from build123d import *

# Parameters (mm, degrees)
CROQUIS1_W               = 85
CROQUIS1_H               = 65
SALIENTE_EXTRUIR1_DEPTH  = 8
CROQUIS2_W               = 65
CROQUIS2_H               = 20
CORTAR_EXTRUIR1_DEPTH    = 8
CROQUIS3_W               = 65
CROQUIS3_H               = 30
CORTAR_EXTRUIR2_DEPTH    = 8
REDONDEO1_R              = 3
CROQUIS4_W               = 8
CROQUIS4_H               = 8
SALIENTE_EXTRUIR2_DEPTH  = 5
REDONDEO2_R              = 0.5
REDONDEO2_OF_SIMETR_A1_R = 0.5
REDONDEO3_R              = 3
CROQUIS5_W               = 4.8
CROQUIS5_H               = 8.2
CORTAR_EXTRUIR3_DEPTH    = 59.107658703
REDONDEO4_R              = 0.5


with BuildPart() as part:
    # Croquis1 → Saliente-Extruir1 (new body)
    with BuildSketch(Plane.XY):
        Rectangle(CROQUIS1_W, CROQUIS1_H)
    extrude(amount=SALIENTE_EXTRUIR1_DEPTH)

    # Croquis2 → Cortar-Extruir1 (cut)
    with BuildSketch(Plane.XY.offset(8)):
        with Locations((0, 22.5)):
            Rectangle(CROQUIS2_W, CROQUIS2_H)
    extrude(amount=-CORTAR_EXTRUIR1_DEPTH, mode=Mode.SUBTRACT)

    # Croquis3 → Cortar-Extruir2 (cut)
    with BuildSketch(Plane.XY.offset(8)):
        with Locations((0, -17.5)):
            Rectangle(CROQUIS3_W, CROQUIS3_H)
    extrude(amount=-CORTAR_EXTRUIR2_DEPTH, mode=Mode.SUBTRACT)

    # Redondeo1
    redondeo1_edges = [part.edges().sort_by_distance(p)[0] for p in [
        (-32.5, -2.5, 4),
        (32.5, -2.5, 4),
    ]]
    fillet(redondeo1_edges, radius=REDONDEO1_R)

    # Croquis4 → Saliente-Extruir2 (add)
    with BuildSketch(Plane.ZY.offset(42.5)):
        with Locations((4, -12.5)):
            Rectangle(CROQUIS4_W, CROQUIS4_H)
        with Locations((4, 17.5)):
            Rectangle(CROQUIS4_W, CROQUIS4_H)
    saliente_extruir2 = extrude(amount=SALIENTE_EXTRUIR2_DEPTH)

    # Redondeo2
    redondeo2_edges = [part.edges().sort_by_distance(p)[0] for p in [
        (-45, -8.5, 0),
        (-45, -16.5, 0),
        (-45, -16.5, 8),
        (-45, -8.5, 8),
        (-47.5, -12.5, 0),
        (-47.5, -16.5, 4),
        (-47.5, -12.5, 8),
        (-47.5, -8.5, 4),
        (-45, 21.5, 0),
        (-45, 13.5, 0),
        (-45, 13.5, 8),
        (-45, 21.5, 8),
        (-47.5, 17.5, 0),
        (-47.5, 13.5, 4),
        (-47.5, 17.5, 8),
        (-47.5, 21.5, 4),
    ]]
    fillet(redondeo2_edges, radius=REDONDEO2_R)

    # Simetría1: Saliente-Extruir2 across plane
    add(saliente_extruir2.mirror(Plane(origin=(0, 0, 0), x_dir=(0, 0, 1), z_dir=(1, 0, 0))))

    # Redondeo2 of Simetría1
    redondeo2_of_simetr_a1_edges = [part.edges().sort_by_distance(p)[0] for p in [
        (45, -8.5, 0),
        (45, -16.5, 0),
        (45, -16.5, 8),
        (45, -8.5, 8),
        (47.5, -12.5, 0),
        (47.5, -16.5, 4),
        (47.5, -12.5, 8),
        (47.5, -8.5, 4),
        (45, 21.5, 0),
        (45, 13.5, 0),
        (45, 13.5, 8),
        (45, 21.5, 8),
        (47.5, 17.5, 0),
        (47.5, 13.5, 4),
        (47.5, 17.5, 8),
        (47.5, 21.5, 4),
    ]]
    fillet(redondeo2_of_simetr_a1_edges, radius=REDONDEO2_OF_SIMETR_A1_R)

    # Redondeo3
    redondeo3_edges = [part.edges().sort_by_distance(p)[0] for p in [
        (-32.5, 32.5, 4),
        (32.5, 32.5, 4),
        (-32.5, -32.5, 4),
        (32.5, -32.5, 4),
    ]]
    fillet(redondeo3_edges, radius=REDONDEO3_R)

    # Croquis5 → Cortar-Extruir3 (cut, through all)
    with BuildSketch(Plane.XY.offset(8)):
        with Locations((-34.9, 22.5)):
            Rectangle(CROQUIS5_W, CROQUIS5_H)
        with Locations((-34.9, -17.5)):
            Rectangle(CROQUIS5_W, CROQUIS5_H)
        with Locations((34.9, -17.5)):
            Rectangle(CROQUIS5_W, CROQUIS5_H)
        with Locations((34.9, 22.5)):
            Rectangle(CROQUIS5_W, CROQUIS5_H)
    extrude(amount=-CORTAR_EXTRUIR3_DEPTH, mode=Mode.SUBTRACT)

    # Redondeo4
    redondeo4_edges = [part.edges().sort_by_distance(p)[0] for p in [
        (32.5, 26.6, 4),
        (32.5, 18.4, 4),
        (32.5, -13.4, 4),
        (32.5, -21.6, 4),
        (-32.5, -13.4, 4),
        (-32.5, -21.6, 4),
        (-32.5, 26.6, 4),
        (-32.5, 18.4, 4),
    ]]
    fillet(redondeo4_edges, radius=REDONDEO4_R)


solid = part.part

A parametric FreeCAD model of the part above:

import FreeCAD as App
import Part
import Sketcher

V = App.Vector


def edges_at(feature, points):
    """Names of the edges that pass closest to the given points."""
    edges = feature.Shape.Edges
    near = lambda p: min(range(len(edges)), key=lambda i: edges[i].distToShape(Part.Vertex(*p))[0])
    return sorted({f"Edge{near(p) + 1}" for p in points})

doc = App.newDocument("Part")
body = doc.addObject("PartDesign::Body", "Body")

# Sketch on XY plane
sketch1 = body.newObject("Sketcher::SketchObject", "Sketch")
sketch1.AttachmentSupport = (doc.getObject("XY_Plane"), [""])
sketch1.MapMode = "FlatFace"
sketch1.addGeometry([
    Part.LineSegment(V(-42, 32, 0), V(-42, -32, 0)),
    Part.LineSegment(V(-42, -32, 0), V(42, -32, 0)),
    Part.LineSegment(V(42, -32, 0), V(42, 32, 0)),
    Part.LineSegment(V(42, 32, 0), V(-42, 32, 0)),
], False)
sketch1.addConstraint([
    Sketcher.Constraint("Coincident", 0, 2, 1, 1),
    Sketcher.Constraint("Coincident", 1, 2, 2, 1),
    Sketcher.Constraint("Coincident", 2, 2, 3, 1),
    Sketcher.Constraint("Coincident", 3, 2, 0, 1),
    Sketcher.Constraint("Vertical", 0),
    Sketcher.Constraint("Horizontal", 1),
    Sketcher.Constraint("Vertical", 2),
    Sketcher.Constraint("Horizontal", 3),
    Sketcher.Constraint("Symmetric", 0, 2, 2, 2, -1, 1),
    Sketcher.Constraint("DistanceX", 1, 1, 1, 2, 85.0),
    Sketcher.Constraint("DistanceY", 0, 2, 0, 1, 65.0),
])
pad1 = body.newObject("PartDesign::Pad", "Pad")
pad1.Profile = sketch1
pad1.Length = 8

# Sketch on XY plane
sketch2 = body.newObject("Sketcher::SketchObject", "Sketch001")
sketch2.AttachmentSupport = (doc.getObject("XY_Plane"), [""])
sketch2.MapMode = "FlatFace"
sketch2.AttachmentOffset = App.Placement(V(0, 0, 8), App.Rotation())
sketch2.addGeometry([
    Part.LineSegment(V(-32, 32, 0), V(-32, 12, 0)),
    Part.LineSegment(V(-32, 12, 0), V(32, 12, 0)),
    Part.LineSegment(V(32, 12, 0), V(32, 32, 0)),
    Part.LineSegment(V(32, 32, 0), V(-32, 32, 0)),
], False)
sketch2.addConstraint([
    Sketcher.Constraint("Coincident", 0, 2, 1, 1),
    Sketcher.Constraint("Coincident", 1, 2, 2, 1),
    Sketcher.Constraint("Coincident", 2, 2, 3, 1),
    Sketcher.Constraint("Coincident", 3, 2, 0, 1),
    Sketcher.Constraint("Vertical", 0),
    Sketcher.Constraint("Horizontal", 1),
    Sketcher.Constraint("Vertical", 2),
    Sketcher.Constraint("Horizontal", 3),
    Sketcher.Constraint("DistanceX", 1, 1, 1, 2, 65.0),
    Sketcher.Constraint("DistanceY", 0, 2, 0, 1, 20.0),
    Sketcher.Constraint("DistanceX", 0, 2, -1, 1, 32.5),
    Sketcher.Constraint("DistanceY", -1, 1, 0, 2, 12.5),
])
pocket1 = body.newObject("PartDesign::Pocket", "Pocket")
pocket1.Profile = sketch2
pocket1.Length = 8

# Sketch on XY plane
sketch3 = body.newObject("Sketcher::SketchObject", "Sketch002")
sketch3.AttachmentSupport = (doc.getObject("XY_Plane"), [""])
sketch3.MapMode = "FlatFace"
sketch3.AttachmentOffset = App.Placement(V(0, 0, 8), App.Rotation())
sketch3.addGeometry([
    Part.LineSegment(V(-32, -2, 0), V(-32, -32, 0)),
    Part.LineSegment(V(-32, -32, 0), V(32, -32, 0)),
    Part.LineSegment(V(32, -32, 0), V(32, -2, 0)),
    Part.LineSegment(V(32, -2, 0), V(-32, -2, 0)),
], False)
sketch3.addConstraint([
    Sketcher.Constraint("Coincident", 0, 2, 1, 1),
    Sketcher.Constraint("Coincident", 1, 2, 2, 1),
    Sketcher.Constraint("Coincident", 2, 2, 3, 1),
    Sketcher.Constraint("Coincident", 3, 2, 0, 1),
    Sketcher.Constraint("Vertical", 0),
    Sketcher.Constraint("Horizontal", 1),
    Sketcher.Constraint("Vertical", 2),
    Sketcher.Constraint("Horizontal", 3),
    Sketcher.Constraint("DistanceX", 1, 1, 1, 2, 65.0),
    Sketcher.Constraint("DistanceY", 0, 2, 0, 1, 30.0),
    Sketcher.Constraint("DistanceX", 0, 2, -1, 1, 32.5),
    Sketcher.Constraint("DistanceY", 0, 2, -1, 1, 32.5),
])
pocket2 = body.newObject("PartDesign::Pocket", "Pocket001")
pocket2.Profile = sketch3
pocket2.Length = 8
doc.recompute()

fillet = body.newObject("PartDesign::Fillet", "Fillet")
fillet.Base = (pocket2, edges_at(pocket2, [(-32.5, -2.5, 4), (32.5, -2.5, 4)]))
fillet.Radius = 3

# Sketch on YZ plane
sketch4 = body.newObject("Sketcher::SketchObject", "Sketch003")
sketch4.AttachmentSupport = (doc.getObject("YZ_Plane"), [""])
sketch4.MapMode = "FlatFace"
sketch4.AttachmentOffset = App.Placement(V(0, 0, -42.5), App.Rotation())
sketch4.addGeometry([
    Part.LineSegment(V(-8, 0, 0), V(-16, 0, 0)),  # 0
    Part.LineSegment(V(-16, 0, 0), V(-16, 8, 0)),  # 1
    Part.LineSegment(V(-16, 8, 0), V(-8, 8, 0)),  # 2
    Part.LineSegment(V(-8, 8, 0), V(-8, 0, 0)),  # 3
    Part.LineSegment(V(22, 0, 0), V(14, 0, 0)),  # 4
    Part.LineSegment(V(14, 0, 0), V(14, 8, 0)),  # 5
    Part.LineSegment(V(14, 8, 0), V(22, 8, 0)),  # 6
    Part.LineSegment(V(22, 8, 0), V(22, 0, 0)),  # 7
], False)
sketch4.addConstraint([
    Sketcher.Constraint("Coincident", 0, 2, 1, 1),
    Sketcher.Constraint("Coincident", 1, 2, 2, 1),
    Sketcher.Constraint("Coincident", 2, 2, 3, 1),
    Sketcher.Constraint("Coincident", 3, 2, 0, 1),
    Sketcher.Constraint("Coincident", 4, 2, 5, 1),
    Sketcher.Constraint("Coincident", 5, 2, 6, 1),
    Sketcher.Constraint("Coincident", 6, 2, 7, 1),
    Sketcher.Constraint("Coincident", 7, 2, 4, 1),
    Sketcher.Constraint("Horizontal", 0),
    Sketcher.Constraint("Vertical", 1),
    Sketcher.Constraint("Horizontal", 2),
    Sketcher.Constraint("Vertical", 3),
    Sketcher.Constraint("Horizontal", 4),
    Sketcher.Constraint("Vertical", 5),
    Sketcher.Constraint("Horizontal", 6),
    Sketcher.Constraint("Vertical", 7),
    Sketcher.Constraint("PointOnObject", 0, 2, -1),
    Sketcher.Constraint("PointOnObject", 4, 2, -1),
    Sketcher.Constraint("Horizontal", 2, 2, 5, 2),
    Sketcher.Constraint("Equal", 2, 4),
    Sketcher.Constraint("Equal", 6, 1),
    Sketcher.Constraint("DistanceX", 0, 2, 0, 1, 8.0),
    Sketcher.Constraint("DistanceX", 3, 2, 4, 2, 22.0),
    Sketcher.Constraint("DistanceX", 0, 2, -1, 1, 16.5),
])
pad2 = body.newObject("PartDesign::Pad", "Pad001")
pad2.Profile = sketch4
pad2.Length = 5
pad2.Reversed = True
doc.recompute()

fillet2 = body.newObject("PartDesign::Fillet", "Fillet001")
fillet2.Base = (pad2, edges_at(pad2, [
    (-45, -8.5, 0),
    (-45, -16.5, 0),
    (-45, -16.5, 8),
    (-45, -8.5, 8),
    (-47.5, -12.5, 0),
    (-47.5, -16.5, 4),
    (-47.5, -12.5, 8),
    (-47.5, -8.5, 4),
    (-45, 21.5, 0),
    (-45, 13.5, 0),
    (-45, 13.5, 8),
    (-45, 21.5, 8),
    (-47.5, 17.5, 0),
    (-47.5, 13.5, 4),
    (-47.5, 17.5, 8),
    (-47.5, 21.5, 4),
]))
fillet2.Radius = 0.5
doc.recompute()

mirrored = body.newObject("PartDesign::Mirrored", "Mirrored")
mirrored.Originals = [pad2]
mirrored.MirrorPlane = (doc.getObject("YZ_Plane"), [""])
body.Tip = mirrored
doc.recompute()

fillet3 = body.newObject("PartDesign::Fillet", "Fillet002")
fillet3.Base = (mirrored, edges_at(mirrored, [
    (45, -8.5, 0),
    (45, -16.5, 0),
    (45, -16.5, 8),
    (45, -8.5, 8),
    (47.5, -12.5, 0),
    (47.5, -16.5, 4),
    (47.5, -12.5, 8),
    (47.5, -8.5, 4),
    (45, 21.5, 0),
    (45, 13.5, 0),
    (45, 13.5, 8),
    (45, 21.5, 8),
    (47.5, 17.5, 0),
    (47.5, 13.5, 4),
    (47.5, 17.5, 8),
    (47.5, 21.5, 4),
]))
fillet3.Radius = 0.5
doc.recompute()

fillet4 = body.newObject("PartDesign::Fillet", "Fillet003")
fillet4.Base = (fillet3, edges_at(fillet3, [
    (-32.5, 32.5, 4),
    (32.5, 32.5, 4),
    (-32.5, -32.5, 4),
    (32.5, -32.5, 4),
]))
fillet4.Radius = 3

# Sketch on XY plane
sketch5 = body.newObject("Sketcher::SketchObject", "Sketch004")
sketch5.AttachmentSupport = (doc.getObject("XY_Plane"), [""])
sketch5.MapMode = "FlatFace"
sketch5.AttachmentOffset = App.Placement(V(0, 0, 8), App.Rotation())
sketch5.addGeometry([
    Part.LineSegment(V(-37.3, 26.6, 0), V(-37.3, 18.4, 0)),  # 0
    Part.LineSegment(V(-37.3, 18.4, 0), V(-32.5, 18.4, 0)),  # 1
    Part.LineSegment(V(-32.5, 18.4, 0), V(-32.5, 26.6, 0)),  # 2
    Part.LineSegment(V(-32.5, 26.6, 0), V(-37.3, 26.6, 0)),  # 3
    Part.LineSegment(V(-37.3, -13.4, 0), V(-37.3, -21.6, 0)),  # 4
    Part.LineSegment(V(-37.3, -21.6, 0), V(-32.5, -21.6, 0)),  # 5
    Part.LineSegment(V(-32.5, -21.6, 0), V(-32.5, -13.4, 0)),  # 6
    Part.LineSegment(V(-32.5, -13.4, 0), V(-37.3, -13.4, 0)),  # 7
    Part.LineSegment(V(32.5, -13.4, 0), V(32.5, -21.6, 0)),  # 8
    Part.LineSegment(V(32.5, -21.6, 0), V(37.3, -21.6, 0)),  # 9
    Part.LineSegment(V(37.3, -21.6, 0), V(37.3, -13.4, 0)),  # 10
    Part.LineSegment(V(37.3, -13.4, 0), V(32.5, -13.4, 0)),  # 11
    Part.LineSegment(V(32.5, 26.6, 0), V(32.5, 18.4, 0)),  # 12
    Part.LineSegment(V(32.5, 18.4, 0), V(37.3, 18.4, 0)),  # 13
    Part.LineSegment(V(37.3, 18.4, 0), V(37.3, 26.6, 0)),  # 14
    Part.LineSegment(V(37.3, 26.6, 0), V(32.5, 26.6, 0)),  # 15
], False)
sketch5.addConstraint([
    Sketcher.Constraint("Coincident", 0, 2, 1, 1),
    Sketcher.Constraint("Coincident", 1, 2, 2, 1),
    Sketcher.Constraint("Coincident", 2, 2, 3, 1),
    Sketcher.Constraint("Coincident", 3, 2, 0, 1),
    Sketcher.Constraint("Coincident", 4, 2, 5, 1),
    Sketcher.Constraint("Coincident", 5, 2, 6, 1),
    Sketcher.Constraint("Coincident", 6, 2, 7, 1),
    Sketcher.Constraint("Coincident", 7, 2, 4, 1),
    Sketcher.Constraint("Coincident", 8, 2, 9, 1),
    Sketcher.Constraint("Coincident", 9, 2, 10, 1),
    Sketcher.Constraint("Coincident", 10, 2, 11, 1),
    Sketcher.Constraint("Coincident", 11, 2, 8, 1),
    Sketcher.Constraint("Coincident", 12, 2, 13, 1),
    Sketcher.Constraint("Coincident", 13, 2, 14, 1),
    Sketcher.Constraint("Coincident", 14, 2, 15, 1),
    Sketcher.Constraint("Coincident", 15, 2, 12, 1),
    Sketcher.Constraint("Vertical", 0),
    Sketcher.Constraint("Horizontal", 1),
    Sketcher.Constraint("Vertical", 2),
    Sketcher.Constraint("Horizontal", 3),
    Sketcher.Constraint("Vertical", 4),
    Sketcher.Constraint("Horizontal", 5),
    Sketcher.Constraint("Vertical", 6),
    Sketcher.Constraint("Horizontal", 7),
    Sketcher.Constraint("Vertical", 8),
    Sketcher.Constraint("Horizontal", 9),
    Sketcher.Constraint("Vertical", 10),
    Sketcher.Constraint("Horizontal", 11),
    Sketcher.Constraint("Vertical", 12),
    Sketcher.Constraint("Horizontal", 13),
    Sketcher.Constraint("Vertical", 14),
    Sketcher.Constraint("Horizontal", 15),
    Sketcher.Constraint("Symmetric", 5, 2, 8, 2, -2),
    Sketcher.Constraint("Symmetric", 7, 2, 10, 2, -2),
    Sketcher.Constraint("Symmetric", 1, 2, 12, 2, -2),
    Sketcher.Constraint("Symmetric", 3, 2, 14, 2, -2),
    Sketcher.Constraint("Vertical", 3, 2, 4, 2),
    Sketcher.Constraint("Vertical", 2, 2, 5, 2),
    Sketcher.Constraint("Equal", 2, 4),
    Sketcher.Constraint("DistanceX", 1, 1, 1, 2, 4.8),
    Sketcher.Constraint("DistanceY", 0, 2, 0, 1, 8.2),
    Sketcher.Constraint("DistanceY", 4, 2, 0, 2, 40.0),
    Sketcher.Constraint("DistanceX", 5, 2, 8, 2, 65.0),
    Sketcher.Constraint("DistanceY", -1, 1, 0, 2, 18.4),
])
pocket3 = body.newObject("PartDesign::Pocket", "Pocket002")
pocket3.Profile = sketch5
pocket3.Type = "ThroughAll"
doc.recompute()

fillet5 = body.newObject("PartDesign::Fillet", "Fillet004")
fillet5.Base = (pocket3, edges_at(pocket3, [
    (32.5, 26.6, 4),
    (32.5, 18.4, 4),
    (32.5, -13.4, 4),
    (32.5, -21.6, 4),
    (-32.5, -13.4, 4),
    (-32.5, -21.6, 4),
    (-32.5, 26.6, 4),
    (-32.5, 18.4, 4),
]))
fillet5.Radius = 0.5

doc.recompute()
